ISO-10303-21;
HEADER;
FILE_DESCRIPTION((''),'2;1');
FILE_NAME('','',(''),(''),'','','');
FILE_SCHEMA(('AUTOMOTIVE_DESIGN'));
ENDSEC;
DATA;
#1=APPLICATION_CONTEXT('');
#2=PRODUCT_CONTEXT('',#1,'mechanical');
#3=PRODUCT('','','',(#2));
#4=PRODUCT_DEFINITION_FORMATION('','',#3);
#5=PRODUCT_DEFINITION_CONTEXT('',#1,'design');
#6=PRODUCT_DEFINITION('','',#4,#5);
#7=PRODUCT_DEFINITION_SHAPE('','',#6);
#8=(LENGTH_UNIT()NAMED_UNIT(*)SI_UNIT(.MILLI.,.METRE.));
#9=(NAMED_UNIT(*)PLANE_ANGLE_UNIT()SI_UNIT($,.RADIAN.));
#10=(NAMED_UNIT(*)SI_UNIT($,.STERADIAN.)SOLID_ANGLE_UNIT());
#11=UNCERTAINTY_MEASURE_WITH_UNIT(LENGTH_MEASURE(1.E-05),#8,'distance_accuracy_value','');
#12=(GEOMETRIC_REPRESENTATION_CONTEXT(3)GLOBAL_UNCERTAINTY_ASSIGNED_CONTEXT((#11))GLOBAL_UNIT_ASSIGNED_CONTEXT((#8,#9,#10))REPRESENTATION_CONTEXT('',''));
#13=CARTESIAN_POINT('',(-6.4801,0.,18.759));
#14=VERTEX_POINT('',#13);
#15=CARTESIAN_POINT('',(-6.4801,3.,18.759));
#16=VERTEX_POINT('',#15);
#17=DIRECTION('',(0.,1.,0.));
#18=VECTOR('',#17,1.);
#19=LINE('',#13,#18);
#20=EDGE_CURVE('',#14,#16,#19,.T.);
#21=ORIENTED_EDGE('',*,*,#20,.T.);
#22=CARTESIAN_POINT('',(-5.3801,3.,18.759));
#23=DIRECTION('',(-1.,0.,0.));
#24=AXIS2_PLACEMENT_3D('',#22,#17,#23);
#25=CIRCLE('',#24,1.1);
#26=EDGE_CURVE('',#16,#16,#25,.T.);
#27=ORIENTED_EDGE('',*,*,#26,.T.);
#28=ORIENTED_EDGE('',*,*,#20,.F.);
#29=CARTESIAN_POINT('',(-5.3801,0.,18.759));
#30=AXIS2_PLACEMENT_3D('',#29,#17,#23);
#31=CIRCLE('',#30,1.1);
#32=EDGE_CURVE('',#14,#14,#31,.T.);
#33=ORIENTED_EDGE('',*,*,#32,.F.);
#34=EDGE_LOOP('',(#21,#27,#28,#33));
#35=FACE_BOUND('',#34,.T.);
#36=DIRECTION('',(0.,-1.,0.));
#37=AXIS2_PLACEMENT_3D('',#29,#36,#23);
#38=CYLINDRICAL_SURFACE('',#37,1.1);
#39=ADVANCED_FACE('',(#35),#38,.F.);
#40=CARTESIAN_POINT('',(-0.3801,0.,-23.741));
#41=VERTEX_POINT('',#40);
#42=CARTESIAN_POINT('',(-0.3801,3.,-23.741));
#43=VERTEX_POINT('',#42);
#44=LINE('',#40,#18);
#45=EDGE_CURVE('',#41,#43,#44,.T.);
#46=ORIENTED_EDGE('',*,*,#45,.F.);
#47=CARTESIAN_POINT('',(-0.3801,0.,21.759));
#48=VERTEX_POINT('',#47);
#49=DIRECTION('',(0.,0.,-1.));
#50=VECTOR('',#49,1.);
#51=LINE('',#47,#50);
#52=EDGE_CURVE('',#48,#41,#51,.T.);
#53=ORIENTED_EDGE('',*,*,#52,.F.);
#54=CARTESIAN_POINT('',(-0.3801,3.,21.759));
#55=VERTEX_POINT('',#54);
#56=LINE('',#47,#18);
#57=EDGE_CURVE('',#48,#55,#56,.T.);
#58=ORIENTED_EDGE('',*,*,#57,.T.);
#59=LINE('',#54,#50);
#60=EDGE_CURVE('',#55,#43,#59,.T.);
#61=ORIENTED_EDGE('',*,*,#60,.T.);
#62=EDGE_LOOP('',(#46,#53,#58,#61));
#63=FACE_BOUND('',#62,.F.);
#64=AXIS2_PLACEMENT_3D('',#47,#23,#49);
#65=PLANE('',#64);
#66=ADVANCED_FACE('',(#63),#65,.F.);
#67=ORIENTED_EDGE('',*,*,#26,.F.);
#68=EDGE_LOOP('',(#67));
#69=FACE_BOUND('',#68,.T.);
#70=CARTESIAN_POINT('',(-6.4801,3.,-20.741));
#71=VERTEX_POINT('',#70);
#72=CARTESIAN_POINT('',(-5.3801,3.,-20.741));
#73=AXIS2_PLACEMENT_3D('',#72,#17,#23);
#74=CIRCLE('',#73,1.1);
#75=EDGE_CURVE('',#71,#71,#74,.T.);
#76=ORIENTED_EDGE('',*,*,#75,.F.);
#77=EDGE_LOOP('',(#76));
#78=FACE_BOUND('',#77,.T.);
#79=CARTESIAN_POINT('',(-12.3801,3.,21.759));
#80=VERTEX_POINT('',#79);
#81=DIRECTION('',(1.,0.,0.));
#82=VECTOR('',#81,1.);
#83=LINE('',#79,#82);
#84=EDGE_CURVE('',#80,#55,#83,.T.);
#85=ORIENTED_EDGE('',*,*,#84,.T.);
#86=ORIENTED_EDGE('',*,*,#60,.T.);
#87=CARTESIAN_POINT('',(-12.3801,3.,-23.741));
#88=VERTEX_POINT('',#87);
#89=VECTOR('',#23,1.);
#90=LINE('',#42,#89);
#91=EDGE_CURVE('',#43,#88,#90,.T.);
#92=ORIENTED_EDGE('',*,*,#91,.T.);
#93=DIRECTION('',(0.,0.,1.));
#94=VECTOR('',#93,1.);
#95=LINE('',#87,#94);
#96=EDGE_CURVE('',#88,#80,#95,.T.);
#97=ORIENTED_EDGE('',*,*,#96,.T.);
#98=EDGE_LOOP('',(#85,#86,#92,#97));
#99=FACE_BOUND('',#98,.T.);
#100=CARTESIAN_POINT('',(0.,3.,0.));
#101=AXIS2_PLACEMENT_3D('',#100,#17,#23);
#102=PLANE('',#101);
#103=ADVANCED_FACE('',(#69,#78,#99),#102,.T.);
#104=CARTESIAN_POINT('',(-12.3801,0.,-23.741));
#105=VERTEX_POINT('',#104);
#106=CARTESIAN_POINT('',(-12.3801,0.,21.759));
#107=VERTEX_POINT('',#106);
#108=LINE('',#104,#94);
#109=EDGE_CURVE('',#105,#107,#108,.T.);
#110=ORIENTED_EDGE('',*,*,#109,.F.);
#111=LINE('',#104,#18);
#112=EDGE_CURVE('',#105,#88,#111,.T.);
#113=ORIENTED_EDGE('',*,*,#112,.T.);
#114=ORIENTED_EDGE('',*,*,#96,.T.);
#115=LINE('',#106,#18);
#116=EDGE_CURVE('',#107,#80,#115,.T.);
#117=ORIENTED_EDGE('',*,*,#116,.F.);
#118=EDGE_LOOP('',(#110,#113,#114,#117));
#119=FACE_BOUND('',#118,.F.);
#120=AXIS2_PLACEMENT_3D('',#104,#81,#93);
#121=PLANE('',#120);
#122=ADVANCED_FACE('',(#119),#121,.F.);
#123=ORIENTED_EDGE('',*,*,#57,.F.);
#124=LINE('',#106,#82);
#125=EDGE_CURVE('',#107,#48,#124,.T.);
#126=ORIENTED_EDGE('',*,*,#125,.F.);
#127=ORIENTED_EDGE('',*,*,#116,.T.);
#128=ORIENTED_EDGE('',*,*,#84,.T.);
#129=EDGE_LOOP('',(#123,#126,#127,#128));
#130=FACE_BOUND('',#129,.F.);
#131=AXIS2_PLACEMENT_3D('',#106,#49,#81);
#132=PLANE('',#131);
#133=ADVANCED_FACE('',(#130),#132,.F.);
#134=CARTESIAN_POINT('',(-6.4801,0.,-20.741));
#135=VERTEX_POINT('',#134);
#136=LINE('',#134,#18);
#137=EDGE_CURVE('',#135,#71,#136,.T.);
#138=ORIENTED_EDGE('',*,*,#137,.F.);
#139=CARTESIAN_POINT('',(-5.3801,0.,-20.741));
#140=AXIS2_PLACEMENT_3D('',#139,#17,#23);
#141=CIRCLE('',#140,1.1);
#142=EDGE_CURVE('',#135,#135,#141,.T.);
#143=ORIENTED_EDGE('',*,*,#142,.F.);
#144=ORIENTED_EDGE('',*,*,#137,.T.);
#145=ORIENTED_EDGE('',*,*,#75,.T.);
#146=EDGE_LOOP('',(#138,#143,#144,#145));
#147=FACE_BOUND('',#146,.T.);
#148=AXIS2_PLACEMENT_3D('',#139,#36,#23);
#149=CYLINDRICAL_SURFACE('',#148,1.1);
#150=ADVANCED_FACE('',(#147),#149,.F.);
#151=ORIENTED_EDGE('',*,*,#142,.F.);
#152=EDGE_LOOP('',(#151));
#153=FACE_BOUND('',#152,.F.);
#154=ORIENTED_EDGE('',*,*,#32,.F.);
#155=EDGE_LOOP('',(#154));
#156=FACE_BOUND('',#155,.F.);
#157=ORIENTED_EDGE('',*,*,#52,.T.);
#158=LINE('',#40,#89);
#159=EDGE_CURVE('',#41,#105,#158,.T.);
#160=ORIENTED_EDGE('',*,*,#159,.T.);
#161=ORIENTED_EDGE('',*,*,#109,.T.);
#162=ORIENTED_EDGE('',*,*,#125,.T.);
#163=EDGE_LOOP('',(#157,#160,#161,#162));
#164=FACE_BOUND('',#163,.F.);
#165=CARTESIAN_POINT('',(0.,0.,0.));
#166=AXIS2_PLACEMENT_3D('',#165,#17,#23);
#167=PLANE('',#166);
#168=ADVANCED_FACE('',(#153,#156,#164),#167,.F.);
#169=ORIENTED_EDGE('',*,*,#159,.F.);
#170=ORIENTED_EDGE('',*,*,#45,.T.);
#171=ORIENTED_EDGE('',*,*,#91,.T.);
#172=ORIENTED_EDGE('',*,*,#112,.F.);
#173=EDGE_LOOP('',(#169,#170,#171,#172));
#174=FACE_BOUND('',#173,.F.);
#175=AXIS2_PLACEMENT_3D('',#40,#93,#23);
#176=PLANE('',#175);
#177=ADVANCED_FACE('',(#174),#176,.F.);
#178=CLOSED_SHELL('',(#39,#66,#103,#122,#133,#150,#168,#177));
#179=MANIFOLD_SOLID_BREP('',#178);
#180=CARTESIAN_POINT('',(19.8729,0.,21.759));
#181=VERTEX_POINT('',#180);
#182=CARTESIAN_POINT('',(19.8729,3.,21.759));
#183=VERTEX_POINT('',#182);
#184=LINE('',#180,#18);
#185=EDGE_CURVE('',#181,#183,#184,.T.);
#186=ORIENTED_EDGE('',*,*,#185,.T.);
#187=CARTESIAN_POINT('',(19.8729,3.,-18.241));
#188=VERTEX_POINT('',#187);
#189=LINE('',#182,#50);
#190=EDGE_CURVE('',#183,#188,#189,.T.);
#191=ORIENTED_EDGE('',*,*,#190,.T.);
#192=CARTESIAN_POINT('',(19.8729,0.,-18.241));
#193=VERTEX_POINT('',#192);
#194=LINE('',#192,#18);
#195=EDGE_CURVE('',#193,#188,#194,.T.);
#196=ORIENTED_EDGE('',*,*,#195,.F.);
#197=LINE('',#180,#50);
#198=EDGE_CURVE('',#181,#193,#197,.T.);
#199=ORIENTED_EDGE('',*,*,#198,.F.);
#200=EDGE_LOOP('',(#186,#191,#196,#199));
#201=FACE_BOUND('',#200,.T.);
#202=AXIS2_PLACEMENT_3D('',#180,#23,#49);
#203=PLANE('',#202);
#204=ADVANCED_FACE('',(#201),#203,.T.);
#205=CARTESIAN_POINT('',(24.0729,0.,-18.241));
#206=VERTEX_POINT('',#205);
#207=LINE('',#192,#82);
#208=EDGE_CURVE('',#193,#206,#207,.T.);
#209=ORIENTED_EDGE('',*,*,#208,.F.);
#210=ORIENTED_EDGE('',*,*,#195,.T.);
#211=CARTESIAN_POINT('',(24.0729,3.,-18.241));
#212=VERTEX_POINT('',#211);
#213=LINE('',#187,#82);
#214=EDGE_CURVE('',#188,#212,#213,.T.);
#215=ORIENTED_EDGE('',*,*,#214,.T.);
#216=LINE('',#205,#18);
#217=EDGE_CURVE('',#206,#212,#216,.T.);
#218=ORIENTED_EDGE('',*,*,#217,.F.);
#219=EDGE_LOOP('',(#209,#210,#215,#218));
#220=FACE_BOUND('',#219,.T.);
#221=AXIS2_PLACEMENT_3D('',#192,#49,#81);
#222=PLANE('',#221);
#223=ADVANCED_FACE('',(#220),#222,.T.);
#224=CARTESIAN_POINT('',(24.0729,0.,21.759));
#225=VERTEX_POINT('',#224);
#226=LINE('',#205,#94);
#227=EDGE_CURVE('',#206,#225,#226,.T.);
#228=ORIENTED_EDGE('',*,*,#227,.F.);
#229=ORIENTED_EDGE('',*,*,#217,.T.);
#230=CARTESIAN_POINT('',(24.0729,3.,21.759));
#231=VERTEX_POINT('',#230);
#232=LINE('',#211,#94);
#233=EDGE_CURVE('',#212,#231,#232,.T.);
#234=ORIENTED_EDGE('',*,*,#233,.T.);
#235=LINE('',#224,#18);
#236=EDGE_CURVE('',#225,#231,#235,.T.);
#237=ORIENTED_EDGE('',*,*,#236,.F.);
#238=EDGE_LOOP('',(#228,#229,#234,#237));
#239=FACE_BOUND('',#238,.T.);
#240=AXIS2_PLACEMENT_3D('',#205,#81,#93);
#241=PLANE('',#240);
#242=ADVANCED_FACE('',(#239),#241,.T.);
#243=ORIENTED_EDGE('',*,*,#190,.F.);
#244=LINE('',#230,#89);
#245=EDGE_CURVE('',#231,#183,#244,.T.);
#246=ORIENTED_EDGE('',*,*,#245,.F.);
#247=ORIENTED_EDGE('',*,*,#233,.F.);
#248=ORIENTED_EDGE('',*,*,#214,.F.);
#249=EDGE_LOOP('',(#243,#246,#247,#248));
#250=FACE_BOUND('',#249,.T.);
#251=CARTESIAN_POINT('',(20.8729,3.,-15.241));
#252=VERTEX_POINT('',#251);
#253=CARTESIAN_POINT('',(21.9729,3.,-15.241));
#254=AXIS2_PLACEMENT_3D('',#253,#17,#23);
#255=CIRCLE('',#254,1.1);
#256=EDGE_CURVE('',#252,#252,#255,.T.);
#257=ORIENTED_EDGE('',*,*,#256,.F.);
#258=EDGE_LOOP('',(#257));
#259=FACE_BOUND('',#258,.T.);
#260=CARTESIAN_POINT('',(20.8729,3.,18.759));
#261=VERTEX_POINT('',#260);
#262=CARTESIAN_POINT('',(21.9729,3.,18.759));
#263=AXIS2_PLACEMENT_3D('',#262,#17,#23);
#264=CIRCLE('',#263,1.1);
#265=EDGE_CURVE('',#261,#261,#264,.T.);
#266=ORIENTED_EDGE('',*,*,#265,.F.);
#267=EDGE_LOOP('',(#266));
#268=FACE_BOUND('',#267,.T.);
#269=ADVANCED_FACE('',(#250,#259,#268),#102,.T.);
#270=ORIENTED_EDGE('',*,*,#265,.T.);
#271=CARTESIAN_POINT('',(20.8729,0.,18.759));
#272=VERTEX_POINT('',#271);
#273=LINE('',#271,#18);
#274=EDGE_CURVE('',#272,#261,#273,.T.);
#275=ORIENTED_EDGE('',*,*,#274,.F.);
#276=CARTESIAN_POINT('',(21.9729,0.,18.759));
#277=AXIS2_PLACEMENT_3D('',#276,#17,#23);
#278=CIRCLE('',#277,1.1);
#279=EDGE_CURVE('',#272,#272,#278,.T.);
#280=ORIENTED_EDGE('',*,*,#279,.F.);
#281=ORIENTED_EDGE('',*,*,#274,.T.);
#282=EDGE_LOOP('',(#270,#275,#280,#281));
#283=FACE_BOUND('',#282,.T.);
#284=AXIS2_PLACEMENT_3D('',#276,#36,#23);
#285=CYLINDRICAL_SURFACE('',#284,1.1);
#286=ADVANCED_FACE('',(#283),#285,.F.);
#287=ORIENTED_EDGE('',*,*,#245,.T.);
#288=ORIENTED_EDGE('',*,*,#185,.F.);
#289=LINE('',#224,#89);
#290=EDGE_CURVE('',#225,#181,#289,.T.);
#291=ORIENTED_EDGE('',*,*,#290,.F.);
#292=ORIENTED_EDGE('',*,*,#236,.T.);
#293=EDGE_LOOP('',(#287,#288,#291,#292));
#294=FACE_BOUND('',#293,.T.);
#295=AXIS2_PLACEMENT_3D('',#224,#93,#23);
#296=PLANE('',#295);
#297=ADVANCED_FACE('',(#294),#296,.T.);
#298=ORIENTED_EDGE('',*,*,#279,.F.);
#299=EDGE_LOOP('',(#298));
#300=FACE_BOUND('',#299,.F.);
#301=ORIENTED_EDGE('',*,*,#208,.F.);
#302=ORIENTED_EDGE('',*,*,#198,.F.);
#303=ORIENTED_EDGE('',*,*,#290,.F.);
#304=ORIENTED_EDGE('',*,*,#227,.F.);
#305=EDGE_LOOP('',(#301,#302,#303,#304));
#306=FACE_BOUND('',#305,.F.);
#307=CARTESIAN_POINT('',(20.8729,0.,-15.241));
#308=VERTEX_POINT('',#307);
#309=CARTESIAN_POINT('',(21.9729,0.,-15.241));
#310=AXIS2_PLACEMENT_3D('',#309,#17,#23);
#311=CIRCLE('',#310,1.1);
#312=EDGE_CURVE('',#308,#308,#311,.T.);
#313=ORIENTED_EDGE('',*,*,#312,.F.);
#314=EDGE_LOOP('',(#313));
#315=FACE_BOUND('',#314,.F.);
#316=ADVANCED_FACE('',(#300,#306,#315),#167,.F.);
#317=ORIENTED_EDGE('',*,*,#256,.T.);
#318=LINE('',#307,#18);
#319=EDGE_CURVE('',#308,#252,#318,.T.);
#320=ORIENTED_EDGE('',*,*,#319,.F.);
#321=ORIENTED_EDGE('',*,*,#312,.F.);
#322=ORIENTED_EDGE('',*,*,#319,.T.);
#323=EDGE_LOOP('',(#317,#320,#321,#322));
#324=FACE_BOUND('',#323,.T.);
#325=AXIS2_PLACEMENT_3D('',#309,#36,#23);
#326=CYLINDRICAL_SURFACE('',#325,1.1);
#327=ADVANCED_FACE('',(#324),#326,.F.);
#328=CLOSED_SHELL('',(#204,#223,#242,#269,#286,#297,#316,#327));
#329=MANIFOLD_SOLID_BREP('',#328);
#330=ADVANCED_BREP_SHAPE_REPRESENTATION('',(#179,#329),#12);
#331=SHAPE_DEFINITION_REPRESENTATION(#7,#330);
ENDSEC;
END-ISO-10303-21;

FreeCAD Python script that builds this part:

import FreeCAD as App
import Part
import Sketcher
from FreeCAD import Vector


def add_polygon(sketch, points):
    """Adds a closed chain of lines whose ends are joined by coincident constraints."""
    first, n = sketch.GeometryCount, len(points)
    for a, b in zip(points, points[1:] + points[:1]):
        sketch.addGeometry(Part.LineSegment(App.Vector(*a, 0), App.Vector(*b, 0)), False)
    for i in range(n):
        sketch.addConstraint(Sketcher.Constraint("Coincident", first + i, 2, first + (i + 1) % n, 1))

doc = App.newDocument("Part")
body = doc.addObject("PartDesign::Body", "Body")
body.AllowCompound = True

# Sketch on XZ plane
sketch1 = body.newObject("Sketcher::SketchObject", "Sketch")
sketch1.AttachmentSupport = (doc.getObject("XZ_Plane"), [""])
sketch1.MapMode = "FlatFace"
add_polygon(sketch1, [(-12.4, -23.7), (-12.4, 21.8), (-0.4, 21.8), (-0.4, -23.7)])  # lines 0-3
sketch1.addGeometry(Part.Circle(Vector(-5.4, -20.7, 0), Vector(0, 0, 1), 1.1), False)  # 4
sketch1.addGeometry(Part.Circle(Vector(-5.4, 18.8, 0), Vector(0, 0, 1), 1.1), False)  # 5
add_polygon(sketch1, [(19.9, 21.8), (24.1, 21.8), (24.1, -18.2), (19.9, -18.2)])  # lines 6-9
sketch1.addGeometry(Part.Circle(Vector(22, -15.2, 0), Vector(0, 0, 1), 1.1), False)  # 10
sketch1.addGeometry(Part.Circle(Vector(22, 18.8, 0), Vector(0, 0, 1), 1.1), False)  # 11
sketch1.addConstraint([
    Sketcher.Constraint("Vertical", 0),
    Sketcher.Constraint("Horizontal", 1),
    Sketcher.Constraint("Vertical", 2),
    Sketcher.Constraint("Horizontal", 3),
    Sketcher.Constraint("Horizontal", 6),
    Sketcher.Constraint("Vertical", 7),
    Sketcher.Constraint("Horizontal", 8),
    Sketcher.Constraint("Vertical", 9),
    Sketcher.Constraint("Equal", 4, 5),
    Sketcher.Constraint("Equal", 5, 10),
    Sketcher.Constraint("Equal", 10, 11),
    Sketcher.Constraint("Horizontal", 5, 3, 11, 3),
    Sketcher.Constraint("Horizontal", 1, 2, 6, 2),
    Sketcher.Constraint("Vertical", 4, 3, 5, 3),
    Sketcher.Constraint("Vertical", 10, 3, 11, 3),
    Sketcher.Constraint("Diameter", 4, 2.2),
    Sketcher.Constraint("DistanceX", 1, 1, 1, 2, 12.0),
    Sketcher.Constraint("DistanceY", 7, 2, 7, 1, 40.0),
    Sketcher.Constraint("DistanceX", 6, 1, 6, 2, 4.2),
    Sketcher.Constraint("DistanceY", 0, 1, 0, 2, 45.5),
    Sketcher.Constraint("DistanceY", 5, 3, 0, 2, 3.0),
    Sketcher.Constraint("DistanceX", 5, 3, 1, 2, 5.0),
    Sketcher.Constraint("DistanceY", 2, 2, 4, 3, 3.0),
    Sketcher.Constraint("DistanceY", 7, 2, 10, 3, 3.0),
    Sketcher.Constraint("DistanceX", 11, 3, 6, 2, 2.1),
    Sketcher.Constraint("DistanceX", 4, 3, -1, 1, 5.38),
    Sketcher.Constraint("DistanceY", 4, 3, -1, 1, 20.741),
    Sketcher.Constraint("DistanceX", -1, 1, 10, 3, 21.973),
])
pad1 = body.newObject("PartDesign::Pad", "Pad")
pad1.Profile = sketch1
pad1.Length = 3
pad1.Reversed = True

doc.recompute()
